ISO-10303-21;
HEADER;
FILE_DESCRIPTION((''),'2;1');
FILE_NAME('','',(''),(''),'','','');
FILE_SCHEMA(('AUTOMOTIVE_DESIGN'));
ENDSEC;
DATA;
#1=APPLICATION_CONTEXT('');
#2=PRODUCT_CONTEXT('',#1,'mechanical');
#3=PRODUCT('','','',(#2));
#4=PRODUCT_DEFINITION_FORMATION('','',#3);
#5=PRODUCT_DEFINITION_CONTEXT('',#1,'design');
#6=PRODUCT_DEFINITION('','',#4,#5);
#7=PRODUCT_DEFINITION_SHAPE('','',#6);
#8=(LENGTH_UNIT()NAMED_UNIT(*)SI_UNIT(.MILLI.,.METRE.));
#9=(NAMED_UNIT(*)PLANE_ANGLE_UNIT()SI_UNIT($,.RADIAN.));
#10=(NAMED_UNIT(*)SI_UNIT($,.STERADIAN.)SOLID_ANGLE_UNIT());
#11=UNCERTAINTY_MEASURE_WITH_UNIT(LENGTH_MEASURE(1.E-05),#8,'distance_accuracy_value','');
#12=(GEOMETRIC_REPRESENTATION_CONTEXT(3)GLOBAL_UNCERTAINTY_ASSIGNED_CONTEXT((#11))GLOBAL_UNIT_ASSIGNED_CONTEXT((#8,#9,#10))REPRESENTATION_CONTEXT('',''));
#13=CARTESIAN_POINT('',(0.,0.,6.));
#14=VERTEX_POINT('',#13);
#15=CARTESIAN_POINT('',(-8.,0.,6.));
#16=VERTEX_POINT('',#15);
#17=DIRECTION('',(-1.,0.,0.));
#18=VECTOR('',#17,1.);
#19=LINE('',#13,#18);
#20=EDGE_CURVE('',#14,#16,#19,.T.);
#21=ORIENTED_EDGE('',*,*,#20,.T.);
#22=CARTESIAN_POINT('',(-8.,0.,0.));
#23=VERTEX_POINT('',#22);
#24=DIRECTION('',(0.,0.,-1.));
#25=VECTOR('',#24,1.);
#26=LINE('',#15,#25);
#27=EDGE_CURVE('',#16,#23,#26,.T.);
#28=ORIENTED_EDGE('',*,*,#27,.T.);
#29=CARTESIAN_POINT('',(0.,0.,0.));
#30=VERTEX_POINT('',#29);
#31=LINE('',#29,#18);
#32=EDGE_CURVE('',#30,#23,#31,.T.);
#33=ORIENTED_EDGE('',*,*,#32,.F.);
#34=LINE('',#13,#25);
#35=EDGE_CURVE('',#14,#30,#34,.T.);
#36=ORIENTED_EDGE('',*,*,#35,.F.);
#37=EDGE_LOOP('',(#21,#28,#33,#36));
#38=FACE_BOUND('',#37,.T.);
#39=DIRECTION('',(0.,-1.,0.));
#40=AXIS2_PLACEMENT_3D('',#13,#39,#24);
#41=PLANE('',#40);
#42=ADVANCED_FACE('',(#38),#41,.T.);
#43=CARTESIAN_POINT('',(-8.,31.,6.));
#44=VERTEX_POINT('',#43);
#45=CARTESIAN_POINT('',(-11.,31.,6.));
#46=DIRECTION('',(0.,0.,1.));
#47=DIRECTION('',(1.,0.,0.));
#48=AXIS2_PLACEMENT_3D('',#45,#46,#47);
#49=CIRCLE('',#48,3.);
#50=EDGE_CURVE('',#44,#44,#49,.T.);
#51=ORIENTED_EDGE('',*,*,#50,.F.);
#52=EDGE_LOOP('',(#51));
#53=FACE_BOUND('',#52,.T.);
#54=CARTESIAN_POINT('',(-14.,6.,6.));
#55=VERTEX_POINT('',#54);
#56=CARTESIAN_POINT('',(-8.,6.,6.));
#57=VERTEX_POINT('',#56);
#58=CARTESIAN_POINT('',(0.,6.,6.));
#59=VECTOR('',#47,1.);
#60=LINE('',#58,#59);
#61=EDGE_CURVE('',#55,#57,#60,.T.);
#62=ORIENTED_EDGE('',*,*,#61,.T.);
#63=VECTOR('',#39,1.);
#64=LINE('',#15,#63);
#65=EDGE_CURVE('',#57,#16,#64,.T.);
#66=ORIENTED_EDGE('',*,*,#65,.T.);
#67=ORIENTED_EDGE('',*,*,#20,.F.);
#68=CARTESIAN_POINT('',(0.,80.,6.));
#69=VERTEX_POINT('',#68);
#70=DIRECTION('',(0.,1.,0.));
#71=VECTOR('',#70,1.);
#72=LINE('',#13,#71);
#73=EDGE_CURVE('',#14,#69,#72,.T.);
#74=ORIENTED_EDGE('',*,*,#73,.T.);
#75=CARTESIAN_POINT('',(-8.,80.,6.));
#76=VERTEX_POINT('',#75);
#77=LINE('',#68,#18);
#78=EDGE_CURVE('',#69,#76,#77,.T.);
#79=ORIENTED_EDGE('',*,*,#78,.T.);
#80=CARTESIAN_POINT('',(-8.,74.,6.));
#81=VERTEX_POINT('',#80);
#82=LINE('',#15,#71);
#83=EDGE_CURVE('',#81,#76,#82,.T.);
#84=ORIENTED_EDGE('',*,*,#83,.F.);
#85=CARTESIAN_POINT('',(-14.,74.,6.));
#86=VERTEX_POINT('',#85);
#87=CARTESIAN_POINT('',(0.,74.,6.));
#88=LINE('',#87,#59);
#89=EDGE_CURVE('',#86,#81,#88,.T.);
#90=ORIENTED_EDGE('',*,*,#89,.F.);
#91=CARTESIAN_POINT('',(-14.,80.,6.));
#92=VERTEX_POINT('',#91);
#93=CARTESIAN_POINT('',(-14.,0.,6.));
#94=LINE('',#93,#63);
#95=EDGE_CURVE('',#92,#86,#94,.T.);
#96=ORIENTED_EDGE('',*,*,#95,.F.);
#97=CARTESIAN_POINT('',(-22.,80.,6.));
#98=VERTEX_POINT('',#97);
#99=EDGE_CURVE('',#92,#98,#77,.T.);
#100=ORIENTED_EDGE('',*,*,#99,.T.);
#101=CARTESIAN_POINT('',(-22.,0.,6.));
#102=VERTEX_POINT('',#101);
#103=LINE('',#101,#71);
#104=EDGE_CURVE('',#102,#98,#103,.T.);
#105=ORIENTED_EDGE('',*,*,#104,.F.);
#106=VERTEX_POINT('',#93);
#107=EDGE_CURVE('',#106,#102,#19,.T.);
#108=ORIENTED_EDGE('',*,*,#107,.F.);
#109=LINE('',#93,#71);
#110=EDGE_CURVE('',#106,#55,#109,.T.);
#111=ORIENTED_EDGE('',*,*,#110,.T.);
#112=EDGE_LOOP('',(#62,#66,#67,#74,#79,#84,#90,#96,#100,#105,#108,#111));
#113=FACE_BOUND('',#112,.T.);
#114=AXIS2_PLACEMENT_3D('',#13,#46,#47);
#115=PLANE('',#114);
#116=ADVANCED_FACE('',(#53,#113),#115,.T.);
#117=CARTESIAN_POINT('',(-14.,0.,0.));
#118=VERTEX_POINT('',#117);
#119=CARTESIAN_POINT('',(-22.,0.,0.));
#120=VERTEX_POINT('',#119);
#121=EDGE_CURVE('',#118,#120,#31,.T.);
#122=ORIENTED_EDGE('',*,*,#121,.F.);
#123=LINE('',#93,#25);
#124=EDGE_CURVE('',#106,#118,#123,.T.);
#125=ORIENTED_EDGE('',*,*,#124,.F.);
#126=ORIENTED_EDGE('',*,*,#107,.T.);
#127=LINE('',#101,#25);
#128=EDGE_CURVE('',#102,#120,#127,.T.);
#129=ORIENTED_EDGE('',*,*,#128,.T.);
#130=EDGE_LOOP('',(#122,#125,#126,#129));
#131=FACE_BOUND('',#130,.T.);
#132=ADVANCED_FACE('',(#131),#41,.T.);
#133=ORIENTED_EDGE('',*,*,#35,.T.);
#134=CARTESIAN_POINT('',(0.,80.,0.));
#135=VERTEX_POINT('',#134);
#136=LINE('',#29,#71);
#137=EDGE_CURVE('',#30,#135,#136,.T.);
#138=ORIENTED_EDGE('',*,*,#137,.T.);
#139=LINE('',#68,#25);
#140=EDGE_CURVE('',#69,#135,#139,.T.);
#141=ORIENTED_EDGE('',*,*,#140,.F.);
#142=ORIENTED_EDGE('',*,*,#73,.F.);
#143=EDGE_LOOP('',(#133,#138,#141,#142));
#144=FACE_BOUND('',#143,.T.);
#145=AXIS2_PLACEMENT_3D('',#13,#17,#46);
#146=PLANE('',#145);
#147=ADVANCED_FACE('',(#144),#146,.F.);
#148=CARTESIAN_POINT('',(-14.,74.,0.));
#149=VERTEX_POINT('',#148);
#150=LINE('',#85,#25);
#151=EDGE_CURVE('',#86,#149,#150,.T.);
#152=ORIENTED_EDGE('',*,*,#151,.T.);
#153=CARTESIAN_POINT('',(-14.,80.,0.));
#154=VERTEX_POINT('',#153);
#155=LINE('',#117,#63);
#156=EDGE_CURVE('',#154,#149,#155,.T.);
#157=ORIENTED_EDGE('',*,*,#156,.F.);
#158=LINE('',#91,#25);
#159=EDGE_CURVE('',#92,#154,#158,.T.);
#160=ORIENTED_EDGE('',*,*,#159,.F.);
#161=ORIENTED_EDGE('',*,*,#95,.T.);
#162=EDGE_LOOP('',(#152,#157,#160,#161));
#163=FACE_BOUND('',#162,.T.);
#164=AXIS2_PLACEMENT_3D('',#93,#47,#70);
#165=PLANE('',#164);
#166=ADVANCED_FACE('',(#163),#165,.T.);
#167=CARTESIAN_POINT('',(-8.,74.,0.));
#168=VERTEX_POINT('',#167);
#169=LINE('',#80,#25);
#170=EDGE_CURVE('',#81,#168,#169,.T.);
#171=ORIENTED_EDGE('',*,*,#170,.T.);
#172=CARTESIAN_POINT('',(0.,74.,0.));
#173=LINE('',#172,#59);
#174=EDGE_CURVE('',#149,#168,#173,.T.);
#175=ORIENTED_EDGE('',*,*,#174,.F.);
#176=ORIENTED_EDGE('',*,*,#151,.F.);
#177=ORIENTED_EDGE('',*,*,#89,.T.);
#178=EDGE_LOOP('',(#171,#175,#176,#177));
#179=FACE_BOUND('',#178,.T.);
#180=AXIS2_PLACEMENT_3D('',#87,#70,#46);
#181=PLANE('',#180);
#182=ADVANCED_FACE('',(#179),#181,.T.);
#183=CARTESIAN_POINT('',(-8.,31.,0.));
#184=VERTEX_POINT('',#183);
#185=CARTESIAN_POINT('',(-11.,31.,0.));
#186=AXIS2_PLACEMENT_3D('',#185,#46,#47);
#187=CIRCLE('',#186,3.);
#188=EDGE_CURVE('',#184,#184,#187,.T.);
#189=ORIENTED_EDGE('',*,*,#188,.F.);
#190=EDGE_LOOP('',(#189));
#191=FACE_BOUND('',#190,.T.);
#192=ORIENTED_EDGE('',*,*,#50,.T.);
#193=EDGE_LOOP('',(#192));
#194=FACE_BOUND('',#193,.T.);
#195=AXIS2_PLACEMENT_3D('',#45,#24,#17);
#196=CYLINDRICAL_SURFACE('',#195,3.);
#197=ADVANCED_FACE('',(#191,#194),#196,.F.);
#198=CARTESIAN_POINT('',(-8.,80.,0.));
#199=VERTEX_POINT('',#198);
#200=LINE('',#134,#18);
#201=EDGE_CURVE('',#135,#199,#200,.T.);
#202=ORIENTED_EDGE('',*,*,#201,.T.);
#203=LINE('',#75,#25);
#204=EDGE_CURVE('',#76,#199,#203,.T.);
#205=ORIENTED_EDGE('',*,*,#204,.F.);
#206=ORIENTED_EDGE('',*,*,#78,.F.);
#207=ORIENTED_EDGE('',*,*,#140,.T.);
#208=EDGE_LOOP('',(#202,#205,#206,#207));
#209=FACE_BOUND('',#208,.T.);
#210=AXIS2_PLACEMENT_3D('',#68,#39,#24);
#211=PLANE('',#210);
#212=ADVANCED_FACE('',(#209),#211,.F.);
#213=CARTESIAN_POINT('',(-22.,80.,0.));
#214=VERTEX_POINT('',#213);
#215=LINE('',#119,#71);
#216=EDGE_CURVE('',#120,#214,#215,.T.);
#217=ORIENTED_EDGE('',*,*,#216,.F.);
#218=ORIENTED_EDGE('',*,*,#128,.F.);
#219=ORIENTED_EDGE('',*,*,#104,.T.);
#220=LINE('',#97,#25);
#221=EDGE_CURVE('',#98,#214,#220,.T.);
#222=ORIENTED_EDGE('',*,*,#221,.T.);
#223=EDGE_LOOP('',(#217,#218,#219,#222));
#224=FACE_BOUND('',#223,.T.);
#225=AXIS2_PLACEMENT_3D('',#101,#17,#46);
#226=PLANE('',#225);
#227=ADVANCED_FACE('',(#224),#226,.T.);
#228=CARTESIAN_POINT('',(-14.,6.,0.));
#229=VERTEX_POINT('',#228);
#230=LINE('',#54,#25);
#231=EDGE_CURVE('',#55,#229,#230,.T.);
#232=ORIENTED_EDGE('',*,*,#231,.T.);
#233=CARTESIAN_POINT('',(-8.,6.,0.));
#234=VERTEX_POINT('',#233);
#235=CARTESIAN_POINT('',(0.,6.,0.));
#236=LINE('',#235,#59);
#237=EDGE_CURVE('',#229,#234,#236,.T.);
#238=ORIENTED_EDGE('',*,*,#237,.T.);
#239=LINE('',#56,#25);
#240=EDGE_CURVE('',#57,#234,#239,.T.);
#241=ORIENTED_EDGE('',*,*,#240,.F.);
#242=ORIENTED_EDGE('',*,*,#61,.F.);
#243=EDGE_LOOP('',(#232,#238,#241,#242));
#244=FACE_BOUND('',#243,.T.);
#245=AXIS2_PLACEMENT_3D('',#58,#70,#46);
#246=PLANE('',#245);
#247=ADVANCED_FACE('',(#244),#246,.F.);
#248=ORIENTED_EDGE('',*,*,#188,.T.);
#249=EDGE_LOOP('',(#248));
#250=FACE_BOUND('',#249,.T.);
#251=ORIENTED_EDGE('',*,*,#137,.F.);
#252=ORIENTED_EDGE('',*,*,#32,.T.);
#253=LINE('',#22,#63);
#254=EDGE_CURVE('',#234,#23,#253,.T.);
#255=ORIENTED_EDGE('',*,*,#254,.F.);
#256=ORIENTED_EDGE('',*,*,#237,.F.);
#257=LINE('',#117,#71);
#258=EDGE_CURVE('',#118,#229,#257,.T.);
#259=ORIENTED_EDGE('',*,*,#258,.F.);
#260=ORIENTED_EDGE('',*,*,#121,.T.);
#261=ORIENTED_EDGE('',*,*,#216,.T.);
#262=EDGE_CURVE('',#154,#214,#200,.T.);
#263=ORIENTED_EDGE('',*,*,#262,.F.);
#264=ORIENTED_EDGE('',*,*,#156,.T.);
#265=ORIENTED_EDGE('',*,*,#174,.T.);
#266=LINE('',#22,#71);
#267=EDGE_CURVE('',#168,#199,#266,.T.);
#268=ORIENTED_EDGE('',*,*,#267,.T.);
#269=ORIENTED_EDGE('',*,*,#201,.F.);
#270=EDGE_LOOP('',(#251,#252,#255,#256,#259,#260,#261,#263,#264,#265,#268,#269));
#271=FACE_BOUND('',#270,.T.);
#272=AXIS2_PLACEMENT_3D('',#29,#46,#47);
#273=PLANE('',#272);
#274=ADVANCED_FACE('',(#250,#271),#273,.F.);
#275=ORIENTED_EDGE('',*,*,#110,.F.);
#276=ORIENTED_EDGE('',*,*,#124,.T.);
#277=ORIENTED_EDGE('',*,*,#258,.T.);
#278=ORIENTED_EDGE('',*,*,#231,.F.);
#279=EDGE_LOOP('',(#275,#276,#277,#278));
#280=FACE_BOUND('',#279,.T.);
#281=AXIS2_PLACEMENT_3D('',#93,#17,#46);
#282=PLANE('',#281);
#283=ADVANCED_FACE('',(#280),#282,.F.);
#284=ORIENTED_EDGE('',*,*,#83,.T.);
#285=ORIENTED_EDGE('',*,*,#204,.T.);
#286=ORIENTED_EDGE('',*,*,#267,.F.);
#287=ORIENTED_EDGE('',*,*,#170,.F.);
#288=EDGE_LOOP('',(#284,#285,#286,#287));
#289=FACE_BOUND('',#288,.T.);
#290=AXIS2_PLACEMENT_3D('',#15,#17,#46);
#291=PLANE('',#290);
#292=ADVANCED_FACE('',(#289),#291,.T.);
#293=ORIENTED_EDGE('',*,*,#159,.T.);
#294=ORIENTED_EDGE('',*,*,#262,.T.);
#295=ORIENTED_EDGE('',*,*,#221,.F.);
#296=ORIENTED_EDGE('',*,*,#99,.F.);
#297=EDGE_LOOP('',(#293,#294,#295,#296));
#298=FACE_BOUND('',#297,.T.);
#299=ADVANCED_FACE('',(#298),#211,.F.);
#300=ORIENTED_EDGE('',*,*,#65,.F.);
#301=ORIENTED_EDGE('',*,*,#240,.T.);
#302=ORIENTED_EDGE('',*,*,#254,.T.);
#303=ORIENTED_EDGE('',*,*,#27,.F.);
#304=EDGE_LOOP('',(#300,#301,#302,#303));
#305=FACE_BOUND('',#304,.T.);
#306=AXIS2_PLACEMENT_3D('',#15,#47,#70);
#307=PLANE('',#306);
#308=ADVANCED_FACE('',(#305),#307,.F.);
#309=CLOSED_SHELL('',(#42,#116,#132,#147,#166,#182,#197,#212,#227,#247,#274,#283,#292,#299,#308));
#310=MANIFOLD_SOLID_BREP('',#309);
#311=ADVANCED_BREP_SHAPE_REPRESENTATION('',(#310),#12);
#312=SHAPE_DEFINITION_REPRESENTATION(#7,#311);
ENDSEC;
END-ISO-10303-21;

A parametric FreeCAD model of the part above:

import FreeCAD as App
import Part
import Sketcher
from FreeCAD import Vector
Q = App.Units.Quantity


def add_polygon(sketch, points):
    """Adds a closed chain of lines whose ends are joined by coincident constraints."""
    first, n = sketch.GeometryCount, len(points)
    for a, b in zip(points, points[1:] + points[:1]):
        sketch.addGeometry(Part.LineSegment(App.Vector(*a, 0), App.Vector(*b, 0)), False)
    for i in range(n):
        sketch.addConstraint(Sketcher.Constraint("Coincident", first + i, 2, first + (i + 1) % n, 1))

doc = App.newDocument("Part")
body = doc.addObject("PartDesign::Body", "Body")

# Sketch on XY plane
sketch1 = body.newObject("Sketcher::SketchObject", "Sketch")
sketch1.AttachmentSupport = (doc.getObject("XY_Plane"), [""])
sketch1.MapMode = "FlatFace"
add_polygon(sketch1, [(-14, 74), (-14, 80), (-22, 80), (-22, 0), (-14, 0), (-14, 6), (-8, 6), (-8, 0), (0, 0), (0, 80), (-8, 80), (-8, 74)])  # lines 0-11
sketch1.addGeometry(Part.Circle(Vector(-11, 31, 0), Vector(0, 0, 1), 3), False)  # 12
sketch1.addConstraint([
    Sketcher.Constraint("Vertical", 0),
    Sketcher.Constraint("Horizontal", 1),
    Sketcher.Constraint("Vertical", 2),
    Sketcher.Constraint("Horizontal", 3),
    Sketcher.Constraint("Vertical", 4),
    Sketcher.Constraint("Horizontal", 5),
    Sketcher.Constraint("Vertical", 6),
    Sketcher.Constraint("Horizontal", 7),
    Sketcher.Constraint("Vertical", 8),
    Sketcher.Constraint("Horizontal", 9),
    Sketcher.Constraint("Vertical", 10),
    Sketcher.Constraint("Horizontal", 11),
    Sketcher.Constraint("Coincident", 7, 2, -1, 1),
    Sketcher.Constraint("PointOnObject", 2, 2, -1),
    Sketcher.Constraint("Horizontal", 1, 2, 8, 2),
    Sketcher.Constraint("Vertical", 0, 2, 3, 2),
    Sketcher.Constraint("Vertical", 6, 2, 9, 2),
    Sketcher.Constraint("Equal", 3, 7),
    Sketcher.Constraint("Equal", 11, 0),
    Sketcher.Constraint("Equal", 0, 4),
    Sketcher.Constraint("Diameter", 12, Q("6 mm")),
    Sketcher.Constraint("DistanceX", 1, 2, 1, 1, Q("8 mm")),
    Sketcher.Constraint("DistanceX", 5, 1, 5, 2, Q("6 mm")),
    Sketcher.Constraint("DistanceY", 2, 2, 2, 1, Q("80 mm")),
    Sketcher.Constraint("DistanceX", 12, 3, -1, 1, Q("11 mm")),
    Sketcher.Constraint("DistanceY", -1, 1, 12, 3, Q("31 mm")),
])
pad1 = body.newObject("PartDesign::Pad", "Pad")
pad1.Profile = sketch1
pad1.Length = 6

doc.recompute()
